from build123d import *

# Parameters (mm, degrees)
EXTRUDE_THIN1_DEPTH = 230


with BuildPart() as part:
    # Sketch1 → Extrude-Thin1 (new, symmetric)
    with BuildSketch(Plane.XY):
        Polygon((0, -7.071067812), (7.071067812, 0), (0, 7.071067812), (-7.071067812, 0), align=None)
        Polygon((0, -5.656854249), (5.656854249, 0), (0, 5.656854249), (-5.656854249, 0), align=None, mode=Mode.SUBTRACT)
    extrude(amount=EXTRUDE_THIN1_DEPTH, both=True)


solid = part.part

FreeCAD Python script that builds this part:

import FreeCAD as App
import Part
import Sketcher

V = App.Vector

doc = App.newDocument("Part")
body = doc.addObject("PartDesign::Body", "Body")

# Sketch on XY plane
sketch1 = doc.addObject("Sketcher::SketchObject", "Sketch")
body.addObject(sketch1)
sketch1.AttachmentSupport = (doc.XY_Plane, [""])
sketch1.MapMode = "FlatFace"
sketch1.addGeometry(Part.LineSegment(V(0, -7, 0), V(7, 0, 0)), False)
sketch1.addGeometry(Part.LineSegment(V(7, 0, 0), V(0, 7, 0)), False)
sketch1.addGeometry(Part.LineSegment(V(0, 7, 0), V(-7, 0, 0)), False)
sketch1.addGeometry(Part.LineSegment(V(-7, 0, 0), V(0, -7, 0)), False)
sketch1.addGeometry(Part.LineSegment(V(6, 0, 0), V(0, -6, 0)), False)
sketch1.addGeometry(Part.LineSegment(V(0, -6, 0), V(-6, 0, 0)), False)
sketch1.addGeometry(Part.LineSegment(V(-6, 0, 0), V(0, 6, 0)), False)
sketch1.addGeometry(Part.LineSegment(V(0, 6, 0), V(6, 0, 0)), False)
sketch1.addConstraint(Sketcher.Constraint("Coincident", 0, 2, 1, 1))
sketch1.addConstraint(Sketcher.Constraint("Coincident", 1, 2, 2, 1))
sketch1.addConstraint(Sketcher.Constraint("Coincident", 2, 2, 3, 1))
sketch1.addConstraint(Sketcher.Constraint("Coincident", 3, 2, 0, 1))
sketch1.addConstraint(Sketcher.Constraint("Coincident", 4, 2, 5, 1))
sketch1.addConstraint(Sketcher.Constraint("Coincident", 5, 2, 6, 1))
sketch1.addConstraint(Sketcher.Constraint("Coincident", 6, 2, 7, 1))
sketch1.addConstraint(Sketcher.Constraint("Coincident", 7, 2, 4, 1))
sketch1.addConstraint(Sketcher.Constraint("Symmetric", 0, 2, 2, 2, -1, 1))
sketch1.addConstraint(Sketcher.Constraint("Symmetric", 1, 2, 3, 2, -1, 1))
sketch1.addConstraint(Sketcher.Constraint("Symmetric", 4, 2, 6, 2, -1, 1))
sketch1.addConstraint(Sketcher.Constraint("Symmetric", 5, 2, 7, 2, -1, 1))
sketch1.addConstraint(Sketcher.Constraint("PointOnObject", 0, 2, -1))
sketch1.addConstraint(Sketcher.Constraint("PointOnObject", 1, 2, -2))
sketch1.addConstraint(Sketcher.Constraint("PointOnObject", 4, 2, -2))
sketch1.addConstraint(Sketcher.Constraint("PointOnObject", 5, 2, -1))
sketch1.addConstraint(Sketcher.Constraint("Perpendicular", 0, 1))
sketch1.addConstraint(Sketcher.Constraint("Perpendicular", 3, 4))
sketch1.addConstraint(Sketcher.Constraint("Distance", 0, 10.0))
sketch1.addConstraint(Sketcher.Constraint("Distance", 4, 8.0))
pad1 = doc.addObject("PartDesign::Pad", "Pad")
body.addObject(pad1)
pad1.Profile = sketch1
pad1.Length = 460
pad1.Midplane = True

doc.recompute()
